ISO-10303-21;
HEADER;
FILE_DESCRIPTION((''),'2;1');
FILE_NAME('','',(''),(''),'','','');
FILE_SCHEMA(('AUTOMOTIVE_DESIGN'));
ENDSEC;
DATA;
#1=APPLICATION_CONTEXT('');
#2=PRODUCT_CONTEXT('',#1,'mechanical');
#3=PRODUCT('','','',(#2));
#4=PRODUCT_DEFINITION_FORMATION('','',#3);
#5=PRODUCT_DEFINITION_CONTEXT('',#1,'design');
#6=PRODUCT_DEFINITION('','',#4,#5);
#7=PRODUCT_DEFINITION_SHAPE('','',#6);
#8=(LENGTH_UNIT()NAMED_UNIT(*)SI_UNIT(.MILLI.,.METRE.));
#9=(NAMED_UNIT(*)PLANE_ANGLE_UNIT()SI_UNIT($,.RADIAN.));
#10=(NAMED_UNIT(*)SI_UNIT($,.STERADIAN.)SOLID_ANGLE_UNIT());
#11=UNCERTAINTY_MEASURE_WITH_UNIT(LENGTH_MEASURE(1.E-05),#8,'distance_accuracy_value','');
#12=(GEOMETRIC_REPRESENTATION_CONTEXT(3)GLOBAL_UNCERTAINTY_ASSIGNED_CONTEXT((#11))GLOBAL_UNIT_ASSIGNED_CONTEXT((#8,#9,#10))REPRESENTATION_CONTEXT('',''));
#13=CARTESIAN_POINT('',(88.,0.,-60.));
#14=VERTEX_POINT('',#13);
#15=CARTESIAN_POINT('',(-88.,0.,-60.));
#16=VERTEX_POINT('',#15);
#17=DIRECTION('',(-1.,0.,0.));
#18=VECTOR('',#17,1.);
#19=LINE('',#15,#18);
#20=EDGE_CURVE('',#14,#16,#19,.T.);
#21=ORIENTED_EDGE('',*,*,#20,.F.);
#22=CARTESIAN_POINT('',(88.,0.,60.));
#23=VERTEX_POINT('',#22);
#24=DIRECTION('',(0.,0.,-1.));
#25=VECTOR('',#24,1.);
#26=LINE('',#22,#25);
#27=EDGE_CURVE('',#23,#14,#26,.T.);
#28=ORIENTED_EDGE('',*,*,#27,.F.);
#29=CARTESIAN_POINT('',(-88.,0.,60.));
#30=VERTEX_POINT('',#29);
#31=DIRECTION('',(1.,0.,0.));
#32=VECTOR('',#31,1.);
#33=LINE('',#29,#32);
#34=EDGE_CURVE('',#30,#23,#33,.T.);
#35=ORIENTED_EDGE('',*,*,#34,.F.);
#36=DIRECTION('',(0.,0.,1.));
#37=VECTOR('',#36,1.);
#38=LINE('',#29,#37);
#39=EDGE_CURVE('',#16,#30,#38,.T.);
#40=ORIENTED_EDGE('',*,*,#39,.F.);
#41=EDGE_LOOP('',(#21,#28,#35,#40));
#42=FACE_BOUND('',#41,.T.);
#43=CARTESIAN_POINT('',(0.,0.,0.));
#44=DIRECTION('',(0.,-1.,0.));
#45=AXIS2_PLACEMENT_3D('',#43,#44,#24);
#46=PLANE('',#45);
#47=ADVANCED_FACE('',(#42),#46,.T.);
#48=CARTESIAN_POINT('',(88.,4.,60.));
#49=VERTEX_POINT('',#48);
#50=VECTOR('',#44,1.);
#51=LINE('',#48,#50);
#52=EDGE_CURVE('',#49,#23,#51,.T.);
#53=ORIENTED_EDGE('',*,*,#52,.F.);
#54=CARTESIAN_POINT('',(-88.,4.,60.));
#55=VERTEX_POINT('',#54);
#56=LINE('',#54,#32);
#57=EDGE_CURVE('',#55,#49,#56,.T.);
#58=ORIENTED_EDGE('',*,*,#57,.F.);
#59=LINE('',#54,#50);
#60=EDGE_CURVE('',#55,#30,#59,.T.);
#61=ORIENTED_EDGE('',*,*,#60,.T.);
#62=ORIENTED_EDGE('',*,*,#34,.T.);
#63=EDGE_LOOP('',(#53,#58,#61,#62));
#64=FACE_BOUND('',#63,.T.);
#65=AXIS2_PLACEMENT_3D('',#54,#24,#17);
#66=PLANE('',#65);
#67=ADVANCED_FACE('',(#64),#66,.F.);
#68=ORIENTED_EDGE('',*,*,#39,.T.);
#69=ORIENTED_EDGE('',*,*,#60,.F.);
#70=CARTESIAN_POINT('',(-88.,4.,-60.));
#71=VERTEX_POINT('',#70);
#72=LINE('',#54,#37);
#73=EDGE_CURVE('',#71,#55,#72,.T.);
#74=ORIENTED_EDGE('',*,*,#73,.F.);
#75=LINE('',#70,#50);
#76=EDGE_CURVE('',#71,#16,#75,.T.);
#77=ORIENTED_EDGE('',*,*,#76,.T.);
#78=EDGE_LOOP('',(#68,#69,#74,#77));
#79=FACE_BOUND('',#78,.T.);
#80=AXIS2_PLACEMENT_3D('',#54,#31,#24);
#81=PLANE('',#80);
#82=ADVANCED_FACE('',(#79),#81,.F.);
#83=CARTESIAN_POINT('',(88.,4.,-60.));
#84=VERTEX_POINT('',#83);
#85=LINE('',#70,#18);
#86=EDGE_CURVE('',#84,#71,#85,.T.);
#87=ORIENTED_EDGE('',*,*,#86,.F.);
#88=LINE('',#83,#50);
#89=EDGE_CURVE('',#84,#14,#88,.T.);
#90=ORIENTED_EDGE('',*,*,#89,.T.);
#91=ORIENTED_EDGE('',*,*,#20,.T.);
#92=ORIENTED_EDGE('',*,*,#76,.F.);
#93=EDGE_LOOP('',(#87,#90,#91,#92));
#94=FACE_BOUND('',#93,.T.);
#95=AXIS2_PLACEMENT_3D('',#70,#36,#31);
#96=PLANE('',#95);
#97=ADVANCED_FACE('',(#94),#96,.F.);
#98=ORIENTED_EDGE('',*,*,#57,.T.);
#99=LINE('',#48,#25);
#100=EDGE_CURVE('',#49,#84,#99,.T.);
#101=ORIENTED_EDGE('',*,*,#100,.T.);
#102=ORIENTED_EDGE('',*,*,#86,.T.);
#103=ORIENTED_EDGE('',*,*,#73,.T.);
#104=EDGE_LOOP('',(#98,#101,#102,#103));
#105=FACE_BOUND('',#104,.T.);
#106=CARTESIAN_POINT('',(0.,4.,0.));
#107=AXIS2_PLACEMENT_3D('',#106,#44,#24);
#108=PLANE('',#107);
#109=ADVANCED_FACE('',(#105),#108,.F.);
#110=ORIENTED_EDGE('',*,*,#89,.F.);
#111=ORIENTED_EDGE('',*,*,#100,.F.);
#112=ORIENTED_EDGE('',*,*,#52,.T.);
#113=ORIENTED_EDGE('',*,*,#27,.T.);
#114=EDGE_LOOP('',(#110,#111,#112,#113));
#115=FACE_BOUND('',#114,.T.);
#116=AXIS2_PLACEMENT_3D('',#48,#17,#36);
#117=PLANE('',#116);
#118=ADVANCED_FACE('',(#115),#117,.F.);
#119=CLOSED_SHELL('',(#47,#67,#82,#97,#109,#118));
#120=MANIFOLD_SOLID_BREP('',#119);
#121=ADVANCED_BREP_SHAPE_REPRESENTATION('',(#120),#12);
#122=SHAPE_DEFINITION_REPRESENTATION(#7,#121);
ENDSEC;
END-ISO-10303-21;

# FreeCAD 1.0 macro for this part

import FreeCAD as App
import Part
import Sketcher
from FreeCAD import Vector
Q = App.Units.Quantity

doc = App.newDocument("Part")
body = doc.addObject("PartDesign::Body", "Body")

# Sketch on XZ plane
sketch1 = doc.addObject("Sketcher::SketchObject", "Sketch")
body.addObject(sketch1)
sketch1.AttachmentSupport = (doc.XZ_Plane, [""])
sketch1.MapMode = "FlatFace"
sketch1.addGeometry([
    Part.LineSegment(Vector(-88, -60, 0), Vector(-88, 60, 0)),
    Part.LineSegment(Vector(-88, 60, 0), Vector(88, 60, 0)),
    Part.LineSegment(Vector(88, 60, 0), Vector(88, -60, 0)),
    Part.LineSegment(Vector(88, -60, 0), Vector(-88, -60, 0)),
], False)
sketch1.addConstraint([
    Sketcher.Constraint("Coincident", 0, 2, 1, 1),
    Sketcher.Constraint("Coincident", 1, 2, 2, 1),
    Sketcher.Constraint("Coincident", 2, 2, 3, 1),
    Sketcher.Constraint("Coincident", 3, 2, 0, 1),
    Sketcher.Constraint("Vertical", 0),
    Sketcher.Constraint("Horizontal", 1),
    Sketcher.Constraint("Vertical", 2),
    Sketcher.Constraint("Horizontal", 3),
    Sketcher.Constraint("Symmetric", 0, 2, 2, 2, -1, 1),
    Sketcher.Constraint("DistanceX", 1, 1, 1, 2, Q("176 mm")),
    Sketcher.Constraint("DistanceY", 0, 1, 0, 2, Q("120 mm")),
])
pad1 = doc.addObject("PartDesign::Pad", "Pad")
body.addObject(pad1)
pad1.Profile = sketch1
pad1.Length = 4
pad1.Reversed = True

doc.recompute()
